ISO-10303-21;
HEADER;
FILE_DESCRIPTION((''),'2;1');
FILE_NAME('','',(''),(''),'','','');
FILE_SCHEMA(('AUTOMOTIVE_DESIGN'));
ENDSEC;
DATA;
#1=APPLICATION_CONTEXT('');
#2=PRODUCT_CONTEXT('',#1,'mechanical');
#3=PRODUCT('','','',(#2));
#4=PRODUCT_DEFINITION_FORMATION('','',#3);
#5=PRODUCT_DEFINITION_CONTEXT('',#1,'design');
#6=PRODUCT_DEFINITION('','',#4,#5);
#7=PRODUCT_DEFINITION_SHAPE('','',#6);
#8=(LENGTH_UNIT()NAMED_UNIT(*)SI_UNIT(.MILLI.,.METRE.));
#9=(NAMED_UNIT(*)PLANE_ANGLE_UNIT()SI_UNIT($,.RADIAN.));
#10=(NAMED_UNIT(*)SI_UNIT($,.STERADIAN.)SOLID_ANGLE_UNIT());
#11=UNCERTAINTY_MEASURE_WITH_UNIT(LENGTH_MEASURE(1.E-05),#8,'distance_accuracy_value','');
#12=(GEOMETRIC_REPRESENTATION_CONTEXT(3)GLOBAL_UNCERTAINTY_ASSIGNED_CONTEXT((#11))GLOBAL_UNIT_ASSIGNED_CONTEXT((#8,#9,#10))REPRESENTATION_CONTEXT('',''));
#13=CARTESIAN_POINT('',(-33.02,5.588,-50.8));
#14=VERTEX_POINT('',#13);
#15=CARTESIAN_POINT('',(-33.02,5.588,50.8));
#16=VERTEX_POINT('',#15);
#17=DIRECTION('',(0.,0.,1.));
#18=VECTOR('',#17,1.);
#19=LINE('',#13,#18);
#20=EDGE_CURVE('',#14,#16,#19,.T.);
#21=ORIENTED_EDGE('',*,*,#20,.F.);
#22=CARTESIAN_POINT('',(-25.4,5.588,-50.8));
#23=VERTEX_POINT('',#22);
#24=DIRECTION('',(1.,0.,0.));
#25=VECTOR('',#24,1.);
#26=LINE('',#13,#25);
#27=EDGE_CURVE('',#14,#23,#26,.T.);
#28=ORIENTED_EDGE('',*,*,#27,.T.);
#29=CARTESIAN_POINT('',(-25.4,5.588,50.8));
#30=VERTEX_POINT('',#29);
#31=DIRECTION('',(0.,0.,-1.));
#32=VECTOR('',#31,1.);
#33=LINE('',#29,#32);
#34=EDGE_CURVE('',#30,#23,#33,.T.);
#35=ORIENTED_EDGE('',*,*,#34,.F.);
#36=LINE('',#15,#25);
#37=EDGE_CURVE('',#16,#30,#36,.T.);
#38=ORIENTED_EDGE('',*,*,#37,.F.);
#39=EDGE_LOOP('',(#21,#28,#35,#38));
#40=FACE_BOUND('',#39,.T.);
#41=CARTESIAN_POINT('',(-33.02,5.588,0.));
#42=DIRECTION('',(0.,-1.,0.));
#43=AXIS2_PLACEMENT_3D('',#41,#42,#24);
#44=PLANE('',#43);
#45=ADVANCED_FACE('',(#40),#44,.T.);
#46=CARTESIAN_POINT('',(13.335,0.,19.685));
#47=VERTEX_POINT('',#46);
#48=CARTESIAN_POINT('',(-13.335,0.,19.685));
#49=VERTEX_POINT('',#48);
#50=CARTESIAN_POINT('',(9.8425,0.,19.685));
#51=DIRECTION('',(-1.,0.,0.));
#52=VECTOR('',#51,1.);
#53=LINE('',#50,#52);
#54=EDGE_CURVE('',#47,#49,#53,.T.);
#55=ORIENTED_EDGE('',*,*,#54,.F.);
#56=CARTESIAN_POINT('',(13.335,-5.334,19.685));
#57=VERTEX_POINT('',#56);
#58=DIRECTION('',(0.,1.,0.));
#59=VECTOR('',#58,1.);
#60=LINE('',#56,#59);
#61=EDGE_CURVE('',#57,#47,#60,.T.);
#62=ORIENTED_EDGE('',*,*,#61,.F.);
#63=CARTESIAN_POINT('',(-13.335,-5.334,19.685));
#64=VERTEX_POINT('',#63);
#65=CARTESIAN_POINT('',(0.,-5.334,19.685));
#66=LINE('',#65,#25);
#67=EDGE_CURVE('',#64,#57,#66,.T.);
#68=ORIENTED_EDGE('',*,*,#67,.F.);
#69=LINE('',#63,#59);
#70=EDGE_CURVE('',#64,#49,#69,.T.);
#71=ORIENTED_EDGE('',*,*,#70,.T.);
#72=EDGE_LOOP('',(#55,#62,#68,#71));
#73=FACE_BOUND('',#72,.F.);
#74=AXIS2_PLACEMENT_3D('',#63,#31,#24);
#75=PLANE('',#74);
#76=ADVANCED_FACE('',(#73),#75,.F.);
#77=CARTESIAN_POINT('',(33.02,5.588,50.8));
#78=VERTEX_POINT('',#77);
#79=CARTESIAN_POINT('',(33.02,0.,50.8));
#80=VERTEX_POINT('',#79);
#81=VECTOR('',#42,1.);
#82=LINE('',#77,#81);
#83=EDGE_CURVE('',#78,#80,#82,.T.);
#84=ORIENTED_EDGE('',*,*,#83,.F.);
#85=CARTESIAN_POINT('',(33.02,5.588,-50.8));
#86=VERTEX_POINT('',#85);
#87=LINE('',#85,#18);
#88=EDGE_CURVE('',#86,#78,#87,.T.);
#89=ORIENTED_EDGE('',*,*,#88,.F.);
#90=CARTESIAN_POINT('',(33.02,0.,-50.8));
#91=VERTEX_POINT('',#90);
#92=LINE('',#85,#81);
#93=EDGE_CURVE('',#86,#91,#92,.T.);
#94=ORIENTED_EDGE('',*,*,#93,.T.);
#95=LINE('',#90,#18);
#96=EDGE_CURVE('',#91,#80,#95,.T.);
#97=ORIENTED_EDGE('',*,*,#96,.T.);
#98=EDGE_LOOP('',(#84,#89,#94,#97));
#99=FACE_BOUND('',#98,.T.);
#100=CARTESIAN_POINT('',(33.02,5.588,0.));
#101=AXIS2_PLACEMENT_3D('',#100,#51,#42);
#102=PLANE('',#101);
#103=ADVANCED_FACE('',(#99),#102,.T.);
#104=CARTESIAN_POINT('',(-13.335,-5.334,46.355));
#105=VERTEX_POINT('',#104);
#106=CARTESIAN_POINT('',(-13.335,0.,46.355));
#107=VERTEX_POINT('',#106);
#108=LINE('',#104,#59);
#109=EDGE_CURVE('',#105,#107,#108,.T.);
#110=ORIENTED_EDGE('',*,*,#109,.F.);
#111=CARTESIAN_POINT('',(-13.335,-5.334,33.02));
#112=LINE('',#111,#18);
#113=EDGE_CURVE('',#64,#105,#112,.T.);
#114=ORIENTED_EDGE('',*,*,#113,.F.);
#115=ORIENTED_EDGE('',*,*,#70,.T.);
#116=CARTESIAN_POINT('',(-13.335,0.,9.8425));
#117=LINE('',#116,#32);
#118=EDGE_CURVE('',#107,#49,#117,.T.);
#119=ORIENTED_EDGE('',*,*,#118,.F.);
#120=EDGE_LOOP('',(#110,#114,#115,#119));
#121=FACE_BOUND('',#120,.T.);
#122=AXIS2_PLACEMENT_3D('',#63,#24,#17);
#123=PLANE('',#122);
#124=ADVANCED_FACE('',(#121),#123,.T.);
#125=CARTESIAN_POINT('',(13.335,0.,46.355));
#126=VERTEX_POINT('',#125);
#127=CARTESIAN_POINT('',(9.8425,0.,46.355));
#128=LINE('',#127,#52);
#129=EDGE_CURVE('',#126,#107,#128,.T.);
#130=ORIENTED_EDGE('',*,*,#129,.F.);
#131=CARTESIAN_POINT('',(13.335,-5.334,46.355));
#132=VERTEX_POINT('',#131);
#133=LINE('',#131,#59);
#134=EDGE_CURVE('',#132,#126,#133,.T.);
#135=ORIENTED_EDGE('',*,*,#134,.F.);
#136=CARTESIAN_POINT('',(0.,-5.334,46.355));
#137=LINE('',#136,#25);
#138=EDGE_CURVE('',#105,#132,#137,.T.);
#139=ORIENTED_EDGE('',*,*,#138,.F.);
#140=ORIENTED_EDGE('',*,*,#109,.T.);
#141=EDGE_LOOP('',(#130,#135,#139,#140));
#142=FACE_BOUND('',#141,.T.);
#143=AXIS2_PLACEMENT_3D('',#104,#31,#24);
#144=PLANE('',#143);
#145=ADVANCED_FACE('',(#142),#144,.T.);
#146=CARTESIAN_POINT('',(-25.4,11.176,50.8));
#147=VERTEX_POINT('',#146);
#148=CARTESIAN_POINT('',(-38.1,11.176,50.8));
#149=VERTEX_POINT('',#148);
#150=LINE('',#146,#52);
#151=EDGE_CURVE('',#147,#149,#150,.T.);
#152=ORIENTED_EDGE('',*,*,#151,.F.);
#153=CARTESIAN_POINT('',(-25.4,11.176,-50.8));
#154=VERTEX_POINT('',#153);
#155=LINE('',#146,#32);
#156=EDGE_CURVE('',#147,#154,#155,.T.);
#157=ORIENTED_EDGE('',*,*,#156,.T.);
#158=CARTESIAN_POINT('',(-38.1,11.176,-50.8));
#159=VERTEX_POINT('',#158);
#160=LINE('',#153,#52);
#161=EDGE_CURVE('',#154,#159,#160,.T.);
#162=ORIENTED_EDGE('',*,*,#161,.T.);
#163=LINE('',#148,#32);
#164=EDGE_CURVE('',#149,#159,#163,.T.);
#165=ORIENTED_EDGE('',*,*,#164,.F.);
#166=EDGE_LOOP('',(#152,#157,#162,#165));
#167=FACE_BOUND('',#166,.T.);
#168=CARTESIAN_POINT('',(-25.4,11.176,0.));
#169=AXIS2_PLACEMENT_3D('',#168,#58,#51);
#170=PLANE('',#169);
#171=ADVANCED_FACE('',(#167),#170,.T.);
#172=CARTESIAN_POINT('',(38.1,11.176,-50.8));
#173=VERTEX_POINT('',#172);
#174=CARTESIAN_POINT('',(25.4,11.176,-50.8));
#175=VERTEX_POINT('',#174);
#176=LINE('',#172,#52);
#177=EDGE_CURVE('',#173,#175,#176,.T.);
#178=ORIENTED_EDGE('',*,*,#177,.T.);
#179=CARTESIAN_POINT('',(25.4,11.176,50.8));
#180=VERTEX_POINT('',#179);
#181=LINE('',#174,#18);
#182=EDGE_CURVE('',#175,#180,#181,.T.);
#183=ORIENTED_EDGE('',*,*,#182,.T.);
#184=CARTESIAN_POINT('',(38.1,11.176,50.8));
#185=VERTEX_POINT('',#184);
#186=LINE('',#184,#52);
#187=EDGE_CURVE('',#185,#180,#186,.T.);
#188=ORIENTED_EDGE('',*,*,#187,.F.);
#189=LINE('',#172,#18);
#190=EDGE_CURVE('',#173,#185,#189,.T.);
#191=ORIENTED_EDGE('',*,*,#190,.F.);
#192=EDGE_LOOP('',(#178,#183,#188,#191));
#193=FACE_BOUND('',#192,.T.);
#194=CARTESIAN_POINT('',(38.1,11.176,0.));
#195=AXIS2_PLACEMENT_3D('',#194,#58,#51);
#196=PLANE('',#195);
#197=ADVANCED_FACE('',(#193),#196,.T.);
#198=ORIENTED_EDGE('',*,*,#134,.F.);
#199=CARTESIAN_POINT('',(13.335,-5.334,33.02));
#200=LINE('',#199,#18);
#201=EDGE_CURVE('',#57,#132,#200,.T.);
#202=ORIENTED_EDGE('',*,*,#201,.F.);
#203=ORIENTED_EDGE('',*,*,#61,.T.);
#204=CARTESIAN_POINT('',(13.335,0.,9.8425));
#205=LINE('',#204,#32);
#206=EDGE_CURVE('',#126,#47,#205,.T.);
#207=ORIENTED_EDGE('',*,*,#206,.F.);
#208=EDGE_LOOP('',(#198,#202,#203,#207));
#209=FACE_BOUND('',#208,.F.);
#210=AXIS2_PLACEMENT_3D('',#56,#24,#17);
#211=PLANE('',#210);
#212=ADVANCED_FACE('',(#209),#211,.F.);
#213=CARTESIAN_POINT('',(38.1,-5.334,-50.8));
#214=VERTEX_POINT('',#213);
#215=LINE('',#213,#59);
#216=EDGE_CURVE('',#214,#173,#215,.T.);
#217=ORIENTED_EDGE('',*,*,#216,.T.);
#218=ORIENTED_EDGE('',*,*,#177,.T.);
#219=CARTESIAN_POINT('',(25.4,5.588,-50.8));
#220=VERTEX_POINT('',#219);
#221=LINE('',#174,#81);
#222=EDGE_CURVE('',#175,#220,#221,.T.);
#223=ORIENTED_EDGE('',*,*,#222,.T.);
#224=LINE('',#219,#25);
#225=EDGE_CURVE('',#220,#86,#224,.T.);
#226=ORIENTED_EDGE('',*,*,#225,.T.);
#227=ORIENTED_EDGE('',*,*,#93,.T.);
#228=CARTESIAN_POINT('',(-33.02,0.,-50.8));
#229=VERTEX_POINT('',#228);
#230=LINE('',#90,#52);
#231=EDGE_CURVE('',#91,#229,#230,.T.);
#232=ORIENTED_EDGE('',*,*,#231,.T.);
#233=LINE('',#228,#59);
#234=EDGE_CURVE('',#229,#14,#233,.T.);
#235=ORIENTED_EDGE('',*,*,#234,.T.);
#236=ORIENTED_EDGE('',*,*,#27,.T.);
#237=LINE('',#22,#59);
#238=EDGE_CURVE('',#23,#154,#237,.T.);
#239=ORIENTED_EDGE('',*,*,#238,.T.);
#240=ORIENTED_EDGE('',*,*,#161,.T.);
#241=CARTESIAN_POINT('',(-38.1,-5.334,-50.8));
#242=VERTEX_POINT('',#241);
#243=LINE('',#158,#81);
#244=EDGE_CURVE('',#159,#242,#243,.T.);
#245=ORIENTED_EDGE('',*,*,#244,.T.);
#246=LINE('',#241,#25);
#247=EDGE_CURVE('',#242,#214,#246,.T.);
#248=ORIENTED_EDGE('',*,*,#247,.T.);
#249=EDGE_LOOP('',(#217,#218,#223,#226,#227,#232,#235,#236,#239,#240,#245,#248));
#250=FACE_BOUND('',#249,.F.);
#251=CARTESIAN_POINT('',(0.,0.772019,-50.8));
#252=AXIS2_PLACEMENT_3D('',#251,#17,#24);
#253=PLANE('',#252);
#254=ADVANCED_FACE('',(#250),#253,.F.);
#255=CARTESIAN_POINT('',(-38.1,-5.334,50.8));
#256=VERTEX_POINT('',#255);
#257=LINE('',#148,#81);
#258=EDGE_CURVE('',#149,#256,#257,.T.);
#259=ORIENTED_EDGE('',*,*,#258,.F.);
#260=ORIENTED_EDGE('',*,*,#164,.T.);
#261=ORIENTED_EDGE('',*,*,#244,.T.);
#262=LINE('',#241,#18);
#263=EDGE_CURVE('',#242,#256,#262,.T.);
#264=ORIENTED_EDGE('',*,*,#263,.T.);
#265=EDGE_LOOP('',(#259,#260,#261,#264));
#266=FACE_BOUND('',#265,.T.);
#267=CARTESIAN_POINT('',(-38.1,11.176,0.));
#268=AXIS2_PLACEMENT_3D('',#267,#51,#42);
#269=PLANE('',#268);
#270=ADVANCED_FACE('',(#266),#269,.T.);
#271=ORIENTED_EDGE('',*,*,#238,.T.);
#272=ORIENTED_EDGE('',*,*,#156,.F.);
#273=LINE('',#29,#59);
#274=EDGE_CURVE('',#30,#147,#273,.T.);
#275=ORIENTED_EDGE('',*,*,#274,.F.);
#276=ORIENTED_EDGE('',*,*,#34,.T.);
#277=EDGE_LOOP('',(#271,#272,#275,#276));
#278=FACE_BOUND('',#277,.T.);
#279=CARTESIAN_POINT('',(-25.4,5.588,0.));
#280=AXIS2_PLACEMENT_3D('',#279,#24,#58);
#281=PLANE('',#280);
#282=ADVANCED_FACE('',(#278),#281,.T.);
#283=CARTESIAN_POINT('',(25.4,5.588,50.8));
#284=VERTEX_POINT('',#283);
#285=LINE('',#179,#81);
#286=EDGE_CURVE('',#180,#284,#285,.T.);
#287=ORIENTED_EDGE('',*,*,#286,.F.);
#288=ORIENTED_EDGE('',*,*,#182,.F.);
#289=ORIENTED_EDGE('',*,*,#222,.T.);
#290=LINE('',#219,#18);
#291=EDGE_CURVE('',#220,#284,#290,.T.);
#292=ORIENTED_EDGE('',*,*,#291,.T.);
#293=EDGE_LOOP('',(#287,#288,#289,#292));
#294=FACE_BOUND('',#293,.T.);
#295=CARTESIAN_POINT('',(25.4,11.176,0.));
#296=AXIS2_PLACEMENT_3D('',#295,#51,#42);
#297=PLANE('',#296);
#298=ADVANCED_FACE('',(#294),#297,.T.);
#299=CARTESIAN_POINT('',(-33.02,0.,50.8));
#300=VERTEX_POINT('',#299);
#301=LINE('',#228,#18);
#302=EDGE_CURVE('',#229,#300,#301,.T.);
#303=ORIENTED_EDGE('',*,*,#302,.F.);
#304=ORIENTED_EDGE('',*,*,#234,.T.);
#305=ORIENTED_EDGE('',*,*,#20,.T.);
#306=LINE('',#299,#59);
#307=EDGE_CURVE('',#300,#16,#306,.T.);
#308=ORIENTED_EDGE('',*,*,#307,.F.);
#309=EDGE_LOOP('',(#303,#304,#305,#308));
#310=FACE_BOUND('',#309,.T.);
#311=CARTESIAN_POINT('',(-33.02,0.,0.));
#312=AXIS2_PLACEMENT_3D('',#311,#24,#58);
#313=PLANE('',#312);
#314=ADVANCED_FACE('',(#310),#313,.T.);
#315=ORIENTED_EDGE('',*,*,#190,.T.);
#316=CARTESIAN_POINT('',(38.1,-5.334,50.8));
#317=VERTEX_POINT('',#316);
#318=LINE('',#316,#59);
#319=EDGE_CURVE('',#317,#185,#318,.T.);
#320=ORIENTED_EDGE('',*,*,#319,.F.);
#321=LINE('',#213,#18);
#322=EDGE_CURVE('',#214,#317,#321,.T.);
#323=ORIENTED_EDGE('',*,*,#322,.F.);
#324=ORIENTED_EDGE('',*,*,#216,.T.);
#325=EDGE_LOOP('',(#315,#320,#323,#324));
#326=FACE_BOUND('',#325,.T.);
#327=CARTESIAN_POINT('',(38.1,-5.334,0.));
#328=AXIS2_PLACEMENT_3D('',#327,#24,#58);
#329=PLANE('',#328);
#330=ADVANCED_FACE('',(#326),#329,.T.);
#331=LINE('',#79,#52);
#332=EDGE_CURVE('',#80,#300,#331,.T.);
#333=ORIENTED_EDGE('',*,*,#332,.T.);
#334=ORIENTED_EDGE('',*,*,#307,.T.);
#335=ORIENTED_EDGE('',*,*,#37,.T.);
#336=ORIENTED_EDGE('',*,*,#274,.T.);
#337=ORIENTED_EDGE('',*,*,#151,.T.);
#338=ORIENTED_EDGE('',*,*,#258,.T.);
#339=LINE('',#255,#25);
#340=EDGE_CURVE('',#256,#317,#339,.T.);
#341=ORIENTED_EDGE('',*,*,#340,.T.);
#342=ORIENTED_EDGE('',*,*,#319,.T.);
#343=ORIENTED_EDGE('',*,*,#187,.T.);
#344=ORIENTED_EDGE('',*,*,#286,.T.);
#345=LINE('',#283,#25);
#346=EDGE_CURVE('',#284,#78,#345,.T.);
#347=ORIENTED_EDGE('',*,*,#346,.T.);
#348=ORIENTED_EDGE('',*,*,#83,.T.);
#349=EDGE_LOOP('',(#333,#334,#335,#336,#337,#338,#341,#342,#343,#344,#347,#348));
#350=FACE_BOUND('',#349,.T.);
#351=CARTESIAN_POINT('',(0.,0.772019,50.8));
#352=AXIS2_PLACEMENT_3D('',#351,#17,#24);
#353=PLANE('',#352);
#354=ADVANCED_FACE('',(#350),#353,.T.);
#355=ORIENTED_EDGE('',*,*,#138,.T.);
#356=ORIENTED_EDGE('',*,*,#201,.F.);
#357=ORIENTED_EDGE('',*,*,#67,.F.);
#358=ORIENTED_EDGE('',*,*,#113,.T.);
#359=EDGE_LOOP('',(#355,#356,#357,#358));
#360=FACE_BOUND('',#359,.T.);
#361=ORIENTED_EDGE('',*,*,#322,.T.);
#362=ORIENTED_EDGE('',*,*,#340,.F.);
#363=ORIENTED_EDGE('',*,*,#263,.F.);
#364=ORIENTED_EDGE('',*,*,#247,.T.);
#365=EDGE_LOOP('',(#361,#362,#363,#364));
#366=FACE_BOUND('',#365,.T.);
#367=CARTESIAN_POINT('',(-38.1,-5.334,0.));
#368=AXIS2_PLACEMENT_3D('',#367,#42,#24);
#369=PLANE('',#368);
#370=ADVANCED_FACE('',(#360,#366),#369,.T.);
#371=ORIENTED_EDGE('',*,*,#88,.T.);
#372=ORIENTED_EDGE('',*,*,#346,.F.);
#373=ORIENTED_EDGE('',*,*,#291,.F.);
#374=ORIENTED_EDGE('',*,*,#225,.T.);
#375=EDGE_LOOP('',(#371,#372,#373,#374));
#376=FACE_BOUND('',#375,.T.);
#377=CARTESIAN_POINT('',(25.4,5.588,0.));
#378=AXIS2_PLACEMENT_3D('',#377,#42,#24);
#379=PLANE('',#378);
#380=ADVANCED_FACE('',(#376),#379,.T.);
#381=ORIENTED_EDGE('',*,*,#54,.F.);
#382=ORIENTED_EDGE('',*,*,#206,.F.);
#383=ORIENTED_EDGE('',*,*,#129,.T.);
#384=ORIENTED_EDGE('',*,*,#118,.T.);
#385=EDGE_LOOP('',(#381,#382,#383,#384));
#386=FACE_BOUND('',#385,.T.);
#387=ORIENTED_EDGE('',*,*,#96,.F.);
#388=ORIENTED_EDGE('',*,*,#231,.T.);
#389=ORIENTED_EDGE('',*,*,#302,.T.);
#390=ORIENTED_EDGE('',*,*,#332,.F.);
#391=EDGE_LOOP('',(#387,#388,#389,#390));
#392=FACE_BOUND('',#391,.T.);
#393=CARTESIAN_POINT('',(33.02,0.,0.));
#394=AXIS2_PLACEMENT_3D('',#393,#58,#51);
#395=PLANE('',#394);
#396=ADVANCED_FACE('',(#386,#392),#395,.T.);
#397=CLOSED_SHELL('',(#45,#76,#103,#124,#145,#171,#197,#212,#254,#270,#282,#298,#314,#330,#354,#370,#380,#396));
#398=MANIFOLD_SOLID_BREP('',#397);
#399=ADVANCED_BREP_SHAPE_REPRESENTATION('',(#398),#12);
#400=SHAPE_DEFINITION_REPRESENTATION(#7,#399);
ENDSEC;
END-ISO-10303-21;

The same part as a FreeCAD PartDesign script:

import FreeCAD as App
import Part
import Sketcher
Q = App.Units.Quantity

doc = App.newDocument("Part")
body = doc.addObject("PartDesign::Body", "Body")

sketch1 = body.newObject("Sketcher::SketchObject", "Sketch")
sketch1.AttachmentSupport = (doc.getObject("XY_Plane"), [""])
sketch1.MapMode = "FlatFace"
sketch1.addGeometry(Part.LineSegment(App.Vector(-38.1, 11.176, 0), App.Vector(-38.1, -5.334, 0)), False)
sketch1.addGeometry(Part.LineSegment(App.Vector(-38.1, -5.334, 0), App.Vector(38.1, -5.334, 0)), False)
sketch1.addGeometry(Part.LineSegment(App.Vector(38.1, -5.334, 0), App.Vector(38.1, 11.176, 0)), False)
sketch1.addGeometry(Part.LineSegment(App.Vector(38.1, 11.176, 0), App.Vector(25.4, 11.176, 0)), False)
sketch1.addGeometry(Part.LineSegment(App.Vector(25.4, 11.176, 0), App.Vector(25.4, 5.588, 0)), False)
sketch1.addGeometry(Part.LineSegment(App.Vector(25.4, 5.588, 0), App.Vector(33.02, 5.588, 0)), False)
sketch1.addGeometry(Part.LineSegment(App.Vector(33.02, 5.588, 0), App.Vector(33.02, 0, 0)), False)
sketch1.addGeometry(Part.LineSegment(App.Vector(33.02, 0, 0), App.Vector(-33.02, 0, 0)), False)
sketch1.addGeometry(Part.LineSegment(App.Vector(-33.02, 0, 0), App.Vector(-33.02, 5.588, 0)), False)
sketch1.addGeometry(Part.LineSegment(App.Vector(-33.02, 5.588, 0), App.Vector(-25.4, 5.588, 0)), False)
sketch1.addGeometry(Part.LineSegment(App.Vector(-25.4, 5.588, 0), App.Vector(-25.4, 11.176, 0)), False)
sketch1.addGeometry(Part.LineSegment(App.Vector(-25.4, 11.176, 0), App.Vector(-38.1, 11.176, 0)), False)
sketch1.addConstraint(Sketcher.Constraint("Coincident", 0, 2, 1, 1))
sketch1.addConstraint(Sketcher.Constraint("Coincident", 1, 2, 2, 1))
sketch1.addConstraint(Sketcher.Constraint("Coincident", 2, 2, 3, 1))
sketch1.addConstraint(Sketcher.Constraint("Coincident", 3, 2, 4, 1))
sketch1.addConstraint(Sketcher.Constraint("Coincident", 4, 2, 5, 1))
sketch1.addConstraint(Sketcher.Constraint("Coincident", 5, 2, 6, 1))
sketch1.addConstraint(Sketcher.Constraint("Coincident", 6, 2, 7, 1))
sketch1.addConstraint(Sketcher.Constraint("Coincident", 7, 2, 8, 1))
sketch1.addConstraint(Sketcher.Constraint("Coincident", 8, 2, 9, 1))
sketch1.addConstraint(Sketcher.Constraint("Coincident", 9, 2, 10, 1))
sketch1.addConstraint(Sketcher.Constraint("Coincident", 10, 2, 11, 1))
sketch1.addConstraint(Sketcher.Constraint("Coincident", 11, 2, 0, 1))
sketch1.addConstraint(Sketcher.Constraint("Vertical", 0))
sketch1.addConstraint(Sketcher.Constraint("Horizontal", 1))
sketch1.addConstraint(Sketcher.Constraint("Vertical", 2))
sketch1.addConstraint(Sketcher.Constraint("Horizontal", 3))
sketch1.addConstraint(Sketcher.Constraint("Vertical", 4))
sketch1.addConstraint(Sketcher.Constraint("Horizontal", 5))
sketch1.addConstraint(Sketcher.Constraint("Vertical", 6))
sketch1.addConstraint(Sketcher.Constraint("Horizontal", 7))
sketch1.addConstraint(Sketcher.Constraint("Vertical", 8))
sketch1.addConstraint(Sketcher.Constraint("Horizontal", 9))
sketch1.addConstraint(Sketcher.Constraint("Vertical", 10))
sketch1.addConstraint(Sketcher.Constraint("Horizontal", 11))
sketch1.addConstraint(Sketcher.Constraint("Symmetric", 6, 2, 7, 2, -1, 1))
sketch1.addConstraint(Sketcher.Constraint("Symmetric", 4, 2, 9, 2, -2))
sketch1.addConstraint(Sketcher.Constraint("Symmetric", 2, 2, 11, 2, -2))
sketch1.addConstraint(Sketcher.Constraint("Equal", 4, 6))
sketch1.addConstraint(Sketcher.Constraint("DistanceX", 1, 1, 1, 2, Q("3 in")))
sketch1.addConstraint(Sketcher.Constraint("DistanceX", 3, 2, 3, 1, Q("0.5 in")))
sketch1.addConstraint(Sketcher.Constraint("DistanceX", 5, 1, 5, 2, Q("0.3 in")))
sketch1.addConstraint(Sketcher.Constraint("DistanceY", 0, 2, 0, 1, Q("0.65 in")))
sketch1.addConstraint(Sketcher.Constraint("DistanceY", 4, 2, 4, 1, Q("0.22 in")))
pad1 = body.newObject("PartDesign::Pad", "Pad")
pad1.Profile = sketch1
pad1.Length = Q("4 in")
pad1.Midplane = True

sketch2 = body.newObject("Sketcher::SketchObject", "Sketch001")
sketch2.AttachmentSupport = (doc.getObject("XZ_Plane"), [""])
sketch2.MapMode = "FlatFace"
sketch2.AttachmentOffset = App.Placement(App.Vector(0, 0, 0.21 * 25.4), App.Rotation())
sketch2.addGeometry(Part.LineSegment(App.Vector(-13.335, 46.355, 0), App.Vector(-13.335, 19.685, 0)), False)
sketch2.addGeometry(Part.LineSegment(App.Vector(-13.335, 19.685, 0), App.Vector(13.335, 19.685, 0)), False)
sketch2.addGeometry(Part.LineSegment(App.Vector(13.335, 19.685, 0), App.Vector(13.335, 46.355, 0)), False)
sketch2.addGeometry(Part.LineSegment(App.Vector(13.335, 46.355, 0), App.Vector(-13.335, 46.355, 0)), False)
sketch2.addConstraint(Sketcher.Constraint("Coincident", 0, 2, 1, 1))
sketch2.addConstraint(Sketcher.Constraint("Coincident", 1, 2, 2, 1))
sketch2.addConstraint(Sketcher.Constraint("Coincident", 2, 2, 3, 1))
sketch2.addConstraint(Sketcher.Constraint("Coincident", 3, 2, 0, 1))
sketch2.addConstraint(Sketcher.Constraint("Vertical", 0))
sketch2.addConstraint(Sketcher.Constraint("Horizontal", 1))
sketch2.addConstraint(Sketcher.Constraint("Vertical", 2))
sketch2.addConstraint(Sketcher.Constraint("Horizontal", 3))
sketch2.addConstraint(Sketcher.Constraint("Equal", 3, 0))
sketch2.addConstraint(Sketcher.Constraint("DistanceX", 1, 1, 1, 2, Q("1.05 in")))
sketch2.addConstraint(Sketcher.Constraint("DistanceX", 0, 2, -1, 1, Q("0.525 in")))
sketch2.addConstraint(Sketcher.Constraint("DistanceY", -1, 1, 0, 2, Q("0.775 in")))
pocket1 = body.newObject("PartDesign::Pocket", "Pocket")
pocket1.Profile = sketch2
pocket1.Type = "ThroughAll"

doc.recompute()
